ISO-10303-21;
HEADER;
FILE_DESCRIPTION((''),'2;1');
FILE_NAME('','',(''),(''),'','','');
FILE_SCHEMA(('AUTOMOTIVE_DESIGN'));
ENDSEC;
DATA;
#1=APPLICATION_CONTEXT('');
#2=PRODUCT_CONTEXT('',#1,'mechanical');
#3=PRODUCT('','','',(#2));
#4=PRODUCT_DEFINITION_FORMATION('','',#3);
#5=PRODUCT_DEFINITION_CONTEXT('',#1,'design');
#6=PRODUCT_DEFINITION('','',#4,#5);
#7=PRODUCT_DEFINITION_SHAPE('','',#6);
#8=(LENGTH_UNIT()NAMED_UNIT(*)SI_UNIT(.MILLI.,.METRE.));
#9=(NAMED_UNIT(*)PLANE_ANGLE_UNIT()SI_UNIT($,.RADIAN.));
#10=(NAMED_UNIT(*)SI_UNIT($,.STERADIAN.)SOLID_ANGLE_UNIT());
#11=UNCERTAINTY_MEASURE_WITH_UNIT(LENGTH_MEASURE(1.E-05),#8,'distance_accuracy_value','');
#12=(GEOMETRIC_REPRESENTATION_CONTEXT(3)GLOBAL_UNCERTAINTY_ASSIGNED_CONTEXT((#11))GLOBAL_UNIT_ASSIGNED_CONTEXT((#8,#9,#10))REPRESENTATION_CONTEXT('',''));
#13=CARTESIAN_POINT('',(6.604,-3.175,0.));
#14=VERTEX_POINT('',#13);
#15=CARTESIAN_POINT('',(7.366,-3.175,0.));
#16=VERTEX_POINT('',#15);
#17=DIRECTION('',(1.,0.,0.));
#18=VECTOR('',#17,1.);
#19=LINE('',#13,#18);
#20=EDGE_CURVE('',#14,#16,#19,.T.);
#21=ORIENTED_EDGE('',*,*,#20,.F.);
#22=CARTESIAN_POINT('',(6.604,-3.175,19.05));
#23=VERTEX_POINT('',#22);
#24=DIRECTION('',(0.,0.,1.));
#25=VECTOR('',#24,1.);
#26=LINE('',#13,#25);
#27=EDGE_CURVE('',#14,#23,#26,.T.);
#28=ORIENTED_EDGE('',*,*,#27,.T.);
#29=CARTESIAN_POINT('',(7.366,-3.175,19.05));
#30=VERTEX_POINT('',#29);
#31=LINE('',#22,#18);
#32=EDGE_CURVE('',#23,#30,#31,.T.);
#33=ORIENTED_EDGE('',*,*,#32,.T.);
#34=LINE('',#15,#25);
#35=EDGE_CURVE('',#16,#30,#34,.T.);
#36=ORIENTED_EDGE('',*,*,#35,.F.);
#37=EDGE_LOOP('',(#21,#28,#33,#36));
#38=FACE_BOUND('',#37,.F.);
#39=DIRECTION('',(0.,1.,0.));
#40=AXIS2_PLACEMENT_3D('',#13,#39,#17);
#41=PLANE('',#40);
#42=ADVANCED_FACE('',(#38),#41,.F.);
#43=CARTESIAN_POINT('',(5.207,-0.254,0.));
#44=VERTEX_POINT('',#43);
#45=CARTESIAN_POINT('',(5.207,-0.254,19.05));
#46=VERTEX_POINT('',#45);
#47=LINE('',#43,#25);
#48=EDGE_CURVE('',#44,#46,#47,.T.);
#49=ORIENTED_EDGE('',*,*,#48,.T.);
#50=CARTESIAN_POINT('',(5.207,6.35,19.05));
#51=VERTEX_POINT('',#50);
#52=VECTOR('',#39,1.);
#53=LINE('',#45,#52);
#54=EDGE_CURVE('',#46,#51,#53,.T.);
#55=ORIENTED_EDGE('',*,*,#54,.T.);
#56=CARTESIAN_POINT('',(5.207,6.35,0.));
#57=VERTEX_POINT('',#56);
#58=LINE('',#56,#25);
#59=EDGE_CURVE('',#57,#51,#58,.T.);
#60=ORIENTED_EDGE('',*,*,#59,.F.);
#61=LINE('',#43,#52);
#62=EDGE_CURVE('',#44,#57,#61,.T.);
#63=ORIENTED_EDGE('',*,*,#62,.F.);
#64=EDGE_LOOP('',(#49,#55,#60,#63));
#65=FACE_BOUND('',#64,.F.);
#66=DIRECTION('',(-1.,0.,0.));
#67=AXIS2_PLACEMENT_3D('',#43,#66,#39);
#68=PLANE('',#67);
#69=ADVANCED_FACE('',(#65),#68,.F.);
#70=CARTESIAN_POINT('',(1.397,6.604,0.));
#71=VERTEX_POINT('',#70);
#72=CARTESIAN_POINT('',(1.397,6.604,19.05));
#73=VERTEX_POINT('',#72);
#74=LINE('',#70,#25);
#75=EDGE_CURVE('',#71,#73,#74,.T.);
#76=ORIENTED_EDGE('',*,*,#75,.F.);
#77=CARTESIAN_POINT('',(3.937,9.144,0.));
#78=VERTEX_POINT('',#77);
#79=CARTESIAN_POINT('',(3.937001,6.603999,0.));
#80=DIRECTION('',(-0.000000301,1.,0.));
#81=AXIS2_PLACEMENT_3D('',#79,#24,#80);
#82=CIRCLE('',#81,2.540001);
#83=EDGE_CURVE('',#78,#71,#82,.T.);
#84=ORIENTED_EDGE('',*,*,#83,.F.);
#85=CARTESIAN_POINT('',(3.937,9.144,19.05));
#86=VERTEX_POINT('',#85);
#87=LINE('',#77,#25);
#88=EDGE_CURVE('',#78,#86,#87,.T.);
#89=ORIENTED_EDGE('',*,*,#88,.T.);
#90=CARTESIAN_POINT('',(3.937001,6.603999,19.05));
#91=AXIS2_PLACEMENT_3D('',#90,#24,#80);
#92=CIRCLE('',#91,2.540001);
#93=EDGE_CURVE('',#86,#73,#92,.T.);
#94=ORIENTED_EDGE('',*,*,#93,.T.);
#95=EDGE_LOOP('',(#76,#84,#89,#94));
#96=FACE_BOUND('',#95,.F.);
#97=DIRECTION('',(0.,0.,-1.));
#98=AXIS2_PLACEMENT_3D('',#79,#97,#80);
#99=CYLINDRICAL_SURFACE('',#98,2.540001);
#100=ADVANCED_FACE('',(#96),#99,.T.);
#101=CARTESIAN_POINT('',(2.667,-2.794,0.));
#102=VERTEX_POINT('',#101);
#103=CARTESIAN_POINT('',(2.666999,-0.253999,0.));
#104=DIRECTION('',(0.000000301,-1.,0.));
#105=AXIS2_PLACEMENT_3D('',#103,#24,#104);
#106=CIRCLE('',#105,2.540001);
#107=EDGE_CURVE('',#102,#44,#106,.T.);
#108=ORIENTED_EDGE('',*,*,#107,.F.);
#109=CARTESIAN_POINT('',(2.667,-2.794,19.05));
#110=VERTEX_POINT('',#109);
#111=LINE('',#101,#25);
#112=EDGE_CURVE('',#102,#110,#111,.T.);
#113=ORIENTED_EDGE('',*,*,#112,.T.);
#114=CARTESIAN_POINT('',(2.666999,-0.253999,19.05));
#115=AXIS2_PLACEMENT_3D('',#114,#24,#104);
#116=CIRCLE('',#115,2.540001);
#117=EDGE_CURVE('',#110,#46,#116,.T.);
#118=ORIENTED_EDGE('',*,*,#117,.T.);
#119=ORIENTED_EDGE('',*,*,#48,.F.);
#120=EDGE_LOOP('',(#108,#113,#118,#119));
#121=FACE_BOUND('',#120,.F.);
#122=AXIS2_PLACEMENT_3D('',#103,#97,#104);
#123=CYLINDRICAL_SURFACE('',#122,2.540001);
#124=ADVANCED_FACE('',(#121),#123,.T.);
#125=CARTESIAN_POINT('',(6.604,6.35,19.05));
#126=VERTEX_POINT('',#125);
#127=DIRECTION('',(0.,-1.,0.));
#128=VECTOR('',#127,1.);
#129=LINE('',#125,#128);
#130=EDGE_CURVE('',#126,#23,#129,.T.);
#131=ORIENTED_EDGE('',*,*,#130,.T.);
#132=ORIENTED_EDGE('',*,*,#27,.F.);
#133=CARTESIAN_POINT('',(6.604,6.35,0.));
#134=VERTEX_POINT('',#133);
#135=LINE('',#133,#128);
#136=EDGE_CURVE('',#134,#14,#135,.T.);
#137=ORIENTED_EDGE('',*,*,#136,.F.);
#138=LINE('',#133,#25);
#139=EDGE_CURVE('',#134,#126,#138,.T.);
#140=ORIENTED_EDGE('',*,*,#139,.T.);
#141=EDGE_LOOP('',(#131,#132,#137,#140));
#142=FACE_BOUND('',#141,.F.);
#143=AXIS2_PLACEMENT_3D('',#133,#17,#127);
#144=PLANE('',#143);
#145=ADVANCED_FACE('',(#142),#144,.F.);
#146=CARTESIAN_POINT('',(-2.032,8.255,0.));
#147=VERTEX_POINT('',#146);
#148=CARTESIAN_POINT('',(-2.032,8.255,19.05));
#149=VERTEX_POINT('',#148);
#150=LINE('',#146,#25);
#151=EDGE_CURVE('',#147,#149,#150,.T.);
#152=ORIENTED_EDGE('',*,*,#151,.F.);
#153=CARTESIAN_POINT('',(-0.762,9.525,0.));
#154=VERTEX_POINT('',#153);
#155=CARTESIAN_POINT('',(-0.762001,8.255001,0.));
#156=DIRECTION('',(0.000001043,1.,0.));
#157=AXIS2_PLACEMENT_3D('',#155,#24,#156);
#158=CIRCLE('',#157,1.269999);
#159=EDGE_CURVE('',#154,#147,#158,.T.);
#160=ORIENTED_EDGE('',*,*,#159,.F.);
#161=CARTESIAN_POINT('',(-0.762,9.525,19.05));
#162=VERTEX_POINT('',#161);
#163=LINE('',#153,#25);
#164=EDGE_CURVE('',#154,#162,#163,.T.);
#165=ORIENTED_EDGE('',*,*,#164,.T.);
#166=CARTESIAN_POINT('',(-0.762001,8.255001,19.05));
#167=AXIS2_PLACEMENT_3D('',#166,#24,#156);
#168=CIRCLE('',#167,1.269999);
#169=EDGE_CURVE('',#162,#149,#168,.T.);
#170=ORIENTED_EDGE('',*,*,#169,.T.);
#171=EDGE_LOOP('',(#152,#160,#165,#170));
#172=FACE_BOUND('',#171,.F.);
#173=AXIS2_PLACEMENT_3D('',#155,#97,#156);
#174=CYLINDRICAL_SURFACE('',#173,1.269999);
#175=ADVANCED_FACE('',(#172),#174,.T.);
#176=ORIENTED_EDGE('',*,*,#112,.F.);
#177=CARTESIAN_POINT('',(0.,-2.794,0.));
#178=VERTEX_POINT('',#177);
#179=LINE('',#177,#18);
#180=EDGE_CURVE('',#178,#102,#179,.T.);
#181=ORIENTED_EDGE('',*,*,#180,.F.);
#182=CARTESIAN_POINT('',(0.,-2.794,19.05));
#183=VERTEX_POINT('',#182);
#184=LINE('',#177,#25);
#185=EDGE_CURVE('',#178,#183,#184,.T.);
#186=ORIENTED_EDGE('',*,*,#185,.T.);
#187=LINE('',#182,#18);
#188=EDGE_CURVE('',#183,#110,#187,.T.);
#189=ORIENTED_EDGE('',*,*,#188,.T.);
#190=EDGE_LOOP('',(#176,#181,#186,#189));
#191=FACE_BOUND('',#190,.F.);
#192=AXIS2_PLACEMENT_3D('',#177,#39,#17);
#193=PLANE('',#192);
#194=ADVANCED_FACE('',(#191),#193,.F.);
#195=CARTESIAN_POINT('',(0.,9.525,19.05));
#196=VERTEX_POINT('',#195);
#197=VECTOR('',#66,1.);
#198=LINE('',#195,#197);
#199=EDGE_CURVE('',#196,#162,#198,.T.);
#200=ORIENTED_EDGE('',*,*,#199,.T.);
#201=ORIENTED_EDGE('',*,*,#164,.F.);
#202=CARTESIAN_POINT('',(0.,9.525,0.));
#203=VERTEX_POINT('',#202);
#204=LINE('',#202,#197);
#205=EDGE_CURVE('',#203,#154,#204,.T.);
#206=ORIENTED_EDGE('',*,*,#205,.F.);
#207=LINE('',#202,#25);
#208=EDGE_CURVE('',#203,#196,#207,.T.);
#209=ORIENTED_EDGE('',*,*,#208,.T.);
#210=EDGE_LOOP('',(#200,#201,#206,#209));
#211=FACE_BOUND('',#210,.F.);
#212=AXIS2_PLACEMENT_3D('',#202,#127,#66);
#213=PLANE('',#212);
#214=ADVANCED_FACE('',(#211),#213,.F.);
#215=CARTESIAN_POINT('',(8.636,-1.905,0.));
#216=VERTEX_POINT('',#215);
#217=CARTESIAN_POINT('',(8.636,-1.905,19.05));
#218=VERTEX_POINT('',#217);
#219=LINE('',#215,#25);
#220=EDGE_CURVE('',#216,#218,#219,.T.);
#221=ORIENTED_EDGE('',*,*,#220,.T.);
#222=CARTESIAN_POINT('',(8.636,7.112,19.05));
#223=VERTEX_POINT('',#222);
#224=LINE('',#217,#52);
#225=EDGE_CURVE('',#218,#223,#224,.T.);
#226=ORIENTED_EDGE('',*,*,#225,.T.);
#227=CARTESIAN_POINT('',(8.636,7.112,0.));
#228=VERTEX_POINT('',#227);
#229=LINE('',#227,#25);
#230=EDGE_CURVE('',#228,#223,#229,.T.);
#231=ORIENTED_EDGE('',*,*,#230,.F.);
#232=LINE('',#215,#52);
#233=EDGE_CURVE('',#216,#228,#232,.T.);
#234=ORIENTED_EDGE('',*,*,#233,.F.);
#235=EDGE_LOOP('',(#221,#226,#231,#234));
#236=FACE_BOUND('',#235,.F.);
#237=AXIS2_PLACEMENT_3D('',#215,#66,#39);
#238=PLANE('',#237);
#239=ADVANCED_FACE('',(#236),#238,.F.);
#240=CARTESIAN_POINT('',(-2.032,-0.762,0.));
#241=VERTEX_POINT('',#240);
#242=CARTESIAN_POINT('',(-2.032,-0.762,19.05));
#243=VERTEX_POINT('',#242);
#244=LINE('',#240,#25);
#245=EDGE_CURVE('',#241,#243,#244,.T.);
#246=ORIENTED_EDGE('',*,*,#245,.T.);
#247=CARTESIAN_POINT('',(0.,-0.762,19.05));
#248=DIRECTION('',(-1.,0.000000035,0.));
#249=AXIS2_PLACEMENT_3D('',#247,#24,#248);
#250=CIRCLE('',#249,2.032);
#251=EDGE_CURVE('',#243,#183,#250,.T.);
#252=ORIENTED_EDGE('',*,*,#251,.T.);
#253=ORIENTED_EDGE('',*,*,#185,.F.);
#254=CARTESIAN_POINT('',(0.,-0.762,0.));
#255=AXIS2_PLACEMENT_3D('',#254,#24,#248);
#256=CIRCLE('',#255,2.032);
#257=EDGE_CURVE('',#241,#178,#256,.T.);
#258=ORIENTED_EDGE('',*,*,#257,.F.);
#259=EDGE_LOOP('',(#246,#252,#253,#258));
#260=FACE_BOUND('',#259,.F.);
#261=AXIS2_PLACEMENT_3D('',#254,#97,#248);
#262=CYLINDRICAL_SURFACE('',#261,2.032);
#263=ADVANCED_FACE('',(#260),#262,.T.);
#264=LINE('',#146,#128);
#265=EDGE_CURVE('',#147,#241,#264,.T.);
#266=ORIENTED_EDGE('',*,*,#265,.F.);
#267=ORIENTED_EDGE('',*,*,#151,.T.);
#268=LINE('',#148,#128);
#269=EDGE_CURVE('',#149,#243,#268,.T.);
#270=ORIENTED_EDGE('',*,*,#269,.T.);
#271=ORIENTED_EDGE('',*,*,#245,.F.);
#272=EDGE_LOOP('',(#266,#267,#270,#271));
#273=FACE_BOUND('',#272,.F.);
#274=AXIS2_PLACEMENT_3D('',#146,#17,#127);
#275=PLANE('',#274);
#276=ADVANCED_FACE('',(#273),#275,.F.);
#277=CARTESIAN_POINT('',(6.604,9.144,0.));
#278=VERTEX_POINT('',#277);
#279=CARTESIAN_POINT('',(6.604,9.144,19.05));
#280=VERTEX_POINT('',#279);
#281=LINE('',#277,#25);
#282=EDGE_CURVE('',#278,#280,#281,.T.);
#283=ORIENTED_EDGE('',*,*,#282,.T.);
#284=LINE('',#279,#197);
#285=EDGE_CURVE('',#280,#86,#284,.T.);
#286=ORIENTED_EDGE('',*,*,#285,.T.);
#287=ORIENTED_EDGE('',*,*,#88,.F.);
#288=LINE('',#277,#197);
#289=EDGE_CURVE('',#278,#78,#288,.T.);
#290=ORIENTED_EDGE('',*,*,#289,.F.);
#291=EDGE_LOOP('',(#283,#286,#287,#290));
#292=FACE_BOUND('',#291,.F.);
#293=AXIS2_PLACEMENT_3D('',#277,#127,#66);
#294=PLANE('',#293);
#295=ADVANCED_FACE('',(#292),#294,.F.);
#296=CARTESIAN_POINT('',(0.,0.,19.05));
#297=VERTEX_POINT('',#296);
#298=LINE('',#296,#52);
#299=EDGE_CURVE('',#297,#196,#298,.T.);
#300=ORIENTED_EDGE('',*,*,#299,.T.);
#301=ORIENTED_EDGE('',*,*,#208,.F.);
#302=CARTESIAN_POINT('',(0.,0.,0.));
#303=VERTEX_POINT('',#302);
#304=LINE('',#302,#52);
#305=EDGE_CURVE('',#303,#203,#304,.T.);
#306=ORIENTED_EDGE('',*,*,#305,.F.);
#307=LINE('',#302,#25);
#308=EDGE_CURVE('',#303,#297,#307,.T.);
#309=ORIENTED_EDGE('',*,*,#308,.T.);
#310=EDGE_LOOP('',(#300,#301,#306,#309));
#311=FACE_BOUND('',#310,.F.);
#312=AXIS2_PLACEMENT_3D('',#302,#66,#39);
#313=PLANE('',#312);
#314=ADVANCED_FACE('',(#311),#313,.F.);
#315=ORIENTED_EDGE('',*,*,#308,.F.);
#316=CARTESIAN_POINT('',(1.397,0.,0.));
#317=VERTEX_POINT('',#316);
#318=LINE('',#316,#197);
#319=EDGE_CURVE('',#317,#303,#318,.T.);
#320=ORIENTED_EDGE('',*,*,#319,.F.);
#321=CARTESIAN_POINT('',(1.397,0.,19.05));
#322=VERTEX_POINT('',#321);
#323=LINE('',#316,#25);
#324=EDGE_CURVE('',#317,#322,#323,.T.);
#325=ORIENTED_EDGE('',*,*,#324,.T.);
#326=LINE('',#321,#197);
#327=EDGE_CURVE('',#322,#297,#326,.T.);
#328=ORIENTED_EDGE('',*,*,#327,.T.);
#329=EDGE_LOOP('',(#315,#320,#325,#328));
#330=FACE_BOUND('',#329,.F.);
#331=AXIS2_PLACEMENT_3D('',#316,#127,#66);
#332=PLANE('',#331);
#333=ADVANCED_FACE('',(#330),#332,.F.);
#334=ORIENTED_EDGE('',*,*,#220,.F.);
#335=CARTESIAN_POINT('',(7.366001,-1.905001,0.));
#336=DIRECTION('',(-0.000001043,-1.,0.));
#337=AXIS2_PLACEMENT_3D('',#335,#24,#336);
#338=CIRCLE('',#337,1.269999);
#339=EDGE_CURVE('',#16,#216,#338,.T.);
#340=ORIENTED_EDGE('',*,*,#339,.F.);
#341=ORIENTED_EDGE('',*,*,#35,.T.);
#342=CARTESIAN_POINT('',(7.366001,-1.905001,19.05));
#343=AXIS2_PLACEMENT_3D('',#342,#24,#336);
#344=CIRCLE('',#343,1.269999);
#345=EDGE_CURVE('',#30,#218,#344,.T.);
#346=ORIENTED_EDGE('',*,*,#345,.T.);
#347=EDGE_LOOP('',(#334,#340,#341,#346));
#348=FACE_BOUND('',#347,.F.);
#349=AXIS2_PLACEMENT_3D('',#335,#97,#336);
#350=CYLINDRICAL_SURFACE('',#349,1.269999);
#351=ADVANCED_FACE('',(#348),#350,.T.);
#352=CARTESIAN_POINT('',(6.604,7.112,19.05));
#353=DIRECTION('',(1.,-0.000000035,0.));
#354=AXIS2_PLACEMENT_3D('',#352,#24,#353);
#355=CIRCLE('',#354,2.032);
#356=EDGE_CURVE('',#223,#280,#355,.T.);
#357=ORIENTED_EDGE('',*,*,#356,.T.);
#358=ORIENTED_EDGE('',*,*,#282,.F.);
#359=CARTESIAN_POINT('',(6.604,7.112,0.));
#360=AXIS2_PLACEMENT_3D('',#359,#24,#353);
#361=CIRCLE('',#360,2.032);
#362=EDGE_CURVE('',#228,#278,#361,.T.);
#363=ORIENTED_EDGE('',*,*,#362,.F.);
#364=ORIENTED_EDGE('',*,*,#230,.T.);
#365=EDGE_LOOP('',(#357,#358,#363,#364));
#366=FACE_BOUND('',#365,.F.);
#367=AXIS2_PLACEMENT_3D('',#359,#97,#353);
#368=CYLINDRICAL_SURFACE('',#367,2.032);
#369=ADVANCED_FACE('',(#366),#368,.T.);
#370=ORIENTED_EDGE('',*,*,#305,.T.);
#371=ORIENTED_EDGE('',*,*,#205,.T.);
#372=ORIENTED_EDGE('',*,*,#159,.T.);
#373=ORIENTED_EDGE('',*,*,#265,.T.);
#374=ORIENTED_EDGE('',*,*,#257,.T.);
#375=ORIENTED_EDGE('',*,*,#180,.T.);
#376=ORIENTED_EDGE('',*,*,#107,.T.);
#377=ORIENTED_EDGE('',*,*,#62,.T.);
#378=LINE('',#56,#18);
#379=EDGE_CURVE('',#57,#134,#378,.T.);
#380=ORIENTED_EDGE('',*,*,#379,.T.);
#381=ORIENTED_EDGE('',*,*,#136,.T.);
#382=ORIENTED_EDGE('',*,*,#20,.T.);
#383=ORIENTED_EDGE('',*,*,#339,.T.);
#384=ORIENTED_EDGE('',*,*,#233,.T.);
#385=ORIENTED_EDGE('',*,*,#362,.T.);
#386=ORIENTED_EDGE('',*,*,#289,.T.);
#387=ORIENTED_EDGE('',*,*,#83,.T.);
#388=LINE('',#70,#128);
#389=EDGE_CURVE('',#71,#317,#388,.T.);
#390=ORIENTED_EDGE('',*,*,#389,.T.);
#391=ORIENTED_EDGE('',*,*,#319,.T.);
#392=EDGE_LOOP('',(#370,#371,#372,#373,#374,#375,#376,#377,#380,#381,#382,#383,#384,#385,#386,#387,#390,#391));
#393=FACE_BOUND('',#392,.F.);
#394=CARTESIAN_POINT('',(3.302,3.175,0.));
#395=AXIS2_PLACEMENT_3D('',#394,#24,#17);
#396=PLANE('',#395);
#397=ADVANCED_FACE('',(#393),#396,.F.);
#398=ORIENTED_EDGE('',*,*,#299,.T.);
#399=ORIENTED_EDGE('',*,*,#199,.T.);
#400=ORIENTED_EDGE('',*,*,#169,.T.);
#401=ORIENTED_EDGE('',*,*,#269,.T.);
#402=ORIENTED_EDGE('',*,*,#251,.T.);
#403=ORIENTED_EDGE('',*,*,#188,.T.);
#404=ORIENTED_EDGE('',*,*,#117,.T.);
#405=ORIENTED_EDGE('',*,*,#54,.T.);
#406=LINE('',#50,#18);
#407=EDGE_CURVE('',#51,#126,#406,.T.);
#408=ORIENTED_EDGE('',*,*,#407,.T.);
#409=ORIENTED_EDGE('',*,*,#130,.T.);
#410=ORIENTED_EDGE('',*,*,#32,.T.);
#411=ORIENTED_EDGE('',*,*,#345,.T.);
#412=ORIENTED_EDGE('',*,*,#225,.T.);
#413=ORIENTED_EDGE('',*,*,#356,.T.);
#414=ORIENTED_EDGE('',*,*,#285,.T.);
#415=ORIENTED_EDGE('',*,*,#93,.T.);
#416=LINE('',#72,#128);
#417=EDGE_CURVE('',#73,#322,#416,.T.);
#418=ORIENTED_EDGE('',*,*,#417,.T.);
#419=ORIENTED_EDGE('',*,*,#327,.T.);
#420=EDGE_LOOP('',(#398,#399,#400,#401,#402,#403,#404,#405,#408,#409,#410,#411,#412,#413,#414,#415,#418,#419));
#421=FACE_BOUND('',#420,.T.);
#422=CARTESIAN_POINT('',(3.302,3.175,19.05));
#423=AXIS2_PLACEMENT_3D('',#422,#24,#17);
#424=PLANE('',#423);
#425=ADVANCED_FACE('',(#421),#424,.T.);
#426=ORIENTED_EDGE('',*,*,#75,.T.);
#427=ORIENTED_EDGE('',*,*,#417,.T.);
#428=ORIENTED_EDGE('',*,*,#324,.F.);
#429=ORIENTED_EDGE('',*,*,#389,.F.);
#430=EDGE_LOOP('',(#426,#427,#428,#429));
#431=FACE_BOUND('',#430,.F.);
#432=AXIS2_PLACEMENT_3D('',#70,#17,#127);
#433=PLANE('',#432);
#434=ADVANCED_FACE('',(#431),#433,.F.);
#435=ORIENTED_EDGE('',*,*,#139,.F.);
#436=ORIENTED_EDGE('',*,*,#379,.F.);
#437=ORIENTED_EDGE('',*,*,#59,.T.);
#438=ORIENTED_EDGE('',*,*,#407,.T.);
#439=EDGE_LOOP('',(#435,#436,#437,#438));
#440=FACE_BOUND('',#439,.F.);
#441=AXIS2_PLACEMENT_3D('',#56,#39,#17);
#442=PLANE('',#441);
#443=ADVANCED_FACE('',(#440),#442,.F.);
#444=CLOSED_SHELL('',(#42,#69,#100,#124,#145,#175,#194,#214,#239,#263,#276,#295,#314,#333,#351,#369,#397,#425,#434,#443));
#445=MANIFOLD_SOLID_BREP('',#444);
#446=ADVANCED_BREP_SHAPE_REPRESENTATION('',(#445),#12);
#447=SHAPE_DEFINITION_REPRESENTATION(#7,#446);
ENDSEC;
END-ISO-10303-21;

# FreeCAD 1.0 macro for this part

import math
import FreeCAD as App
import Part
import Sketcher

V = App.Vector
Q = App.Units.Quantity

doc = App.newDocument("Part")
body = doc.addObject("PartDesign::Body", "Body")

sketch1 = doc.addObject("Sketcher::SketchObject", "Sketch")
body.addObject(sketch1)
sketch1.AttachmentSupport = (doc.XY_Plane, [""])
sketch1.MapMode = "FlatFace"
sketch1.addGeometry([
    Part.LineSegment(V(0, 0, 0), V(0, 9.5, 0)),
    Part.LineSegment(V(0, 9.5, 0), V(-0.8, 9.5, 0)),
    Part.ArcOfCircle(Part.Circle(V(-0.8, 8.3, 0), V(0, 0, 1), 1.3), math.radians(90), math.radians(180)),
    Part.LineSegment(V(-2, 8.3, 0), V(-2, -0.8, 0)),
    Part.ArcOfCircle(Part.Circle(V(0, -0.8, 0), V(0, 0, 1), 2), math.radians(180), math.radians(270)),
    Part.LineSegment(V(0, -2.8, 0), V(2.7, -2.8, 0)),
    Part.ArcOfCircle(Part.Circle(V(2.7, -0.3, 0), V(0, 0, 1), 2.5), math.radians(-90), math.radians(0)),
    Part.LineSegment(V(5.2, -0.3, 0), V(5.2, 6.3, 0)),
    Part.LineSegment(V(5.2, 6.3, 0), V(6.6, 6.3, 0)),
    Part.LineSegment(V(6.6, 6.3, 0), V(6.6, -3.2, 0)),
    Part.LineSegment(V(6.6, -3.2, 0), V(7.4, -3.2, 0)),
    Part.ArcOfCircle(Part.Circle(V(7.4, -1.9, 0), V(0, 0, 1), 1.3), math.radians(-90), math.radians(0)),
    Part.LineSegment(V(8.6, -1.9, 0), V(8.6, 7.1, 0)),
    Part.ArcOfCircle(Part.Circle(V(6.6, 7.1, 0), V(0, 0, 1), 2), math.radians(0), math.radians(90)),
    Part.LineSegment(V(6.6, 9.1, 0), V(3.9, 9.1, 0)),
    Part.ArcOfCircle(Part.Circle(V(3.9, 6.6, 0), V(0, 0, 1), 2.5), math.radians(90), math.radians(180)),
    Part.LineSegment(V(1.4, 6.6, 0), V(1.4, 0, 0)),
    Part.LineSegment(V(1.4, 0, 0), V(0, 0, 0)),
], False)
sketch1.addConstraint([
    Sketcher.Constraint("Coincident", 0, 2, 1, 1),
    Sketcher.Constraint("Tangent", 1, 2, 2, 1),
    Sketcher.Constraint("Tangent", 2, 2, 3, 1),
    Sketcher.Constraint("Tangent", 3, 2, 4, 1),
    Sketcher.Constraint("Tangent", 4, 2, 5, 1),
    Sketcher.Constraint("Tangent", 5, 2, 6, 1),
    Sketcher.Constraint("Tangent", 6, 2, 7, 1),
    Sketcher.Constraint("Coincident", 7, 2, 8, 1),
    Sketcher.Constraint("Coincident", 8, 2, 9, 1),
    Sketcher.Constraint("Coincident", 9, 2, 10, 1),
    Sketcher.Constraint("Tangent", 10, 2, 11, 1),
    Sketcher.Constraint("Tangent", 11, 2, 12, 1),
    Sketcher.Constraint("Tangent", 12, 2, 13, 1),
    Sketcher.Constraint("Tangent", 13, 2, 14, 1),
    Sketcher.Constraint("Tangent", 14, 2, 15, 1),
    Sketcher.Constraint("Tangent", 15, 2, 16, 1),
    Sketcher.Constraint("Coincident", 16, 2, 17, 1),
    Sketcher.Constraint("Coincident", 17, 2, 0, 1),
    Sketcher.Constraint("Vertical", 0),
    Sketcher.Constraint("Horizontal", 1),
    Sketcher.Constraint("Vertical", 3),
    Sketcher.Constraint("Horizontal", 5),
    Sketcher.Constraint("Vertical", 7),
    Sketcher.Constraint("Horizontal", 8),
    Sketcher.Constraint("Vertical", 9),
    Sketcher.Constraint("Horizontal", 10),
    Sketcher.Constraint("Vertical", 12),
    Sketcher.Constraint("Horizontal", 14),
    Sketcher.Constraint("Vertical", 16),
    Sketcher.Constraint("Horizontal", 17),
    Sketcher.Constraint("Coincident", 17, 2, -1, 1),
    Sketcher.Constraint("Equal", 2, 11),
    Sketcher.Constraint("Equal", 4, 13),
    Sketcher.Constraint("Equal", 6, 15),
    Sketcher.Constraint("PointOnObject", 4, 3, -2),
    Sketcher.Constraint("Vertical", 13, 3, 8, 2),
    Sketcher.Constraint("Equal", 5, 14),
    Sketcher.Constraint("Equal", 0, 9),
    Sketcher.Constraint("Equal", 3, 12),
    Sketcher.Constraint("Radius", 6, Q("0.1 in")),
    Sketcher.Constraint("Radius", 2, Q("0.0499999 in")),
    Sketcher.Constraint("Radius", 4, Q("0.08 in")),
    Sketcher.Constraint("DistanceY", 7, 1, 7, 2, Q("0.26 in")),
    Sketcher.Constraint("DistanceY", 11, 3, 2, 3, Q("0.4000001 in")),
    Sketcher.Constraint("DistanceX", 5, 1, 5, 2, Q("0.105 in")),
    Sketcher.Constraint("DistanceX", 8, 1, 8, 2, Q("0.055 in")),
    Sketcher.Constraint("DistanceY", 0, 1, 0, 2, Q("0.375 in")),
])
pad1 = doc.addObject("PartDesign::Pad", "Pad")
body.addObject(pad1)
pad1.Profile = sketch1
pad1.Length = Q("0.75 in")

doc.recompute()
